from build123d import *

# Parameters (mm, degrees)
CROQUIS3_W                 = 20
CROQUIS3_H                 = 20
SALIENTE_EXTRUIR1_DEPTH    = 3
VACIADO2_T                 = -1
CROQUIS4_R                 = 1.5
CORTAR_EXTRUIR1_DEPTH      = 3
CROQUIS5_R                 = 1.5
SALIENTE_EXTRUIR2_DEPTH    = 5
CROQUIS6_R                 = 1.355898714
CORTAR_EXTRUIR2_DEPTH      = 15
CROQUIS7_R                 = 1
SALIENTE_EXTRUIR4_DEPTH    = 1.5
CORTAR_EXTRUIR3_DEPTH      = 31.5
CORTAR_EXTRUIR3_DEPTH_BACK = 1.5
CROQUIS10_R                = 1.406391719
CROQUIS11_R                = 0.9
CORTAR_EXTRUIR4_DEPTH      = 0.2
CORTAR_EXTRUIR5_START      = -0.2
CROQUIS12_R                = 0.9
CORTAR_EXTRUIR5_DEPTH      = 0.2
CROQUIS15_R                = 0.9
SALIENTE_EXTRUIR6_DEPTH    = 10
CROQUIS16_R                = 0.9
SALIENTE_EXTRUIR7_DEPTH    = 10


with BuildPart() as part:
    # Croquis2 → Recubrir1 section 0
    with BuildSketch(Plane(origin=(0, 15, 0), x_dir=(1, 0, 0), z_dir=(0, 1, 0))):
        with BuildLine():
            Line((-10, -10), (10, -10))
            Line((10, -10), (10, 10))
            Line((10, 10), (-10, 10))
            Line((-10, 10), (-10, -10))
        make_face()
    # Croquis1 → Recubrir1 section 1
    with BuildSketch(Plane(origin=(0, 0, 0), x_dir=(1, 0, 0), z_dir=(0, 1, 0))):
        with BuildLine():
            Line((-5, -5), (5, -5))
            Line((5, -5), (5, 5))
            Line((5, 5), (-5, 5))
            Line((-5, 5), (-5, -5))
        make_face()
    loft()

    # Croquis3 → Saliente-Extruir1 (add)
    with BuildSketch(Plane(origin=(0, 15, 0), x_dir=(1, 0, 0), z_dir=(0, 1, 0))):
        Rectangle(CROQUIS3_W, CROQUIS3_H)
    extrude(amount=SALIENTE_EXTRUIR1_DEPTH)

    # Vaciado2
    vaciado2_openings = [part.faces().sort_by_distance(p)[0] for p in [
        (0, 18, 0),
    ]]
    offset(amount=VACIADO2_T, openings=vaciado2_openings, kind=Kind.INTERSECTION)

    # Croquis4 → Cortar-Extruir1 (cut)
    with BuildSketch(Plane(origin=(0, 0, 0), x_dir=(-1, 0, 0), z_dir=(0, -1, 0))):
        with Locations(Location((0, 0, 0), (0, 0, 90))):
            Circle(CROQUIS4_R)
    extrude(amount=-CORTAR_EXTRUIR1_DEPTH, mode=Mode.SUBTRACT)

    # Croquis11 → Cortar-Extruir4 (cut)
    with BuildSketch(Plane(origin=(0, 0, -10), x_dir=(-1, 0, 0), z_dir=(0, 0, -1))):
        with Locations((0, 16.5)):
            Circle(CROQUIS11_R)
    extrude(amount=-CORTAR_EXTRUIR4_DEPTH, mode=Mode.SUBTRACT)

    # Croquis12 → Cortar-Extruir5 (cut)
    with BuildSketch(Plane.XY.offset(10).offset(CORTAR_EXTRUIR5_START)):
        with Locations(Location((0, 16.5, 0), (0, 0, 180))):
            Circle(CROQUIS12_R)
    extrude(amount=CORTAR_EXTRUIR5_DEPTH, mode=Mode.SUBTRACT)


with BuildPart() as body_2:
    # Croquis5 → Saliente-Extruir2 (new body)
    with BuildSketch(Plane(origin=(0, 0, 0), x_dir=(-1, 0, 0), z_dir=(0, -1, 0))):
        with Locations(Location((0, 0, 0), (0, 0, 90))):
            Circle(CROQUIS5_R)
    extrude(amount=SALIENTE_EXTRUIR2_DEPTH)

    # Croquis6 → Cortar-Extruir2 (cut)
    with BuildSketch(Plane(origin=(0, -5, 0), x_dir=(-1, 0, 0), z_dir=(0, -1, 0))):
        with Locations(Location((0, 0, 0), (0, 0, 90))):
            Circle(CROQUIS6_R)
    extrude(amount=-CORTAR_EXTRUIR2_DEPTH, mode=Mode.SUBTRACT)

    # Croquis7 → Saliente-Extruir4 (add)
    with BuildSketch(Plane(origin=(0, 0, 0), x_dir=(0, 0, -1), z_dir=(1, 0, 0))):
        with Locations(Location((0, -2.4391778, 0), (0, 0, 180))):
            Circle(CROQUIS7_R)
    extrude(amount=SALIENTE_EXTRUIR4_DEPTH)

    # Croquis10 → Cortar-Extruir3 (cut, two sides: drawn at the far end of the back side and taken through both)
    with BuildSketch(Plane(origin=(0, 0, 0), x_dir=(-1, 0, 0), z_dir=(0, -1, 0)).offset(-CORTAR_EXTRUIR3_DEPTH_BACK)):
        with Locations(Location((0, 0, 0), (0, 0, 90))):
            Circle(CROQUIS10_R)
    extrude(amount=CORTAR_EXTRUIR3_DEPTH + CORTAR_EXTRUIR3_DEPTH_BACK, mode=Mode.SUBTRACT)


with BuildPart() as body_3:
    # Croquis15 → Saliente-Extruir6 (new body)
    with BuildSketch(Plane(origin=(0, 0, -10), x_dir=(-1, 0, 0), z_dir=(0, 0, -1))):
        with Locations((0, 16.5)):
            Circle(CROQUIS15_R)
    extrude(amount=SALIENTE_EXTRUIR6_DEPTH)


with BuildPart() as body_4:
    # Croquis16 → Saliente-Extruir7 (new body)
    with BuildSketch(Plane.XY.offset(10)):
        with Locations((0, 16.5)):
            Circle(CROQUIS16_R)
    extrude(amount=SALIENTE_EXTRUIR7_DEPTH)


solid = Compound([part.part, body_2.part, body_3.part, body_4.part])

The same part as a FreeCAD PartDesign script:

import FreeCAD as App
import Part
import Sketcher

V = App.Vector


def faces_at(feature, points):
    """Names of the faces that lie closest to the given points."""
    faces = feature.Shape.Faces
    near = lambda p: min(range(len(faces)), key=lambda i: faces[i].distToShape(Part.Vertex(*p))[0])
    return sorted({f"Face{near(p) + 1}" for p in points})

doc = App.newDocument("Part")
body = doc.addObject("PartDesign::Body", "Body")

sketch1 = body.newObject("Sketcher::SketchObject", "Sketch")
sketch1.AttachmentSupport = (doc.getObject("XZ_Plane"), [""])
sketch1.MapMode = "FlatFace"
sketch1.AttachmentOffset = App.Placement(V(0, 0, -15), App.Rotation())
sketch1.addGeometry([
    Part.LineSegment(V(-10, 10, 0), V(10, 10, 0)),
    Part.LineSegment(V(10, 10, 0), V(10, -10, 0)),
    Part.LineSegment(V(10, -10, 0), V(-10, -10, 0)),
    Part.LineSegment(V(-10, -10, 0), V(-10, 10, 0)),
], False)
sketch1.addConstraint([
    Sketcher.Constraint("Coincident", 0, 2, 1, 1),
    Sketcher.Constraint("Coincident", 1, 2, 2, 1),
    Sketcher.Constraint("Coincident", 2, 2, 3, 1),
    Sketcher.Constraint("Coincident", 3, 2, 0, 1),
    Sketcher.Constraint("Horizontal", 0),
    Sketcher.Constraint("Vertical", 1),
    Sketcher.Constraint("Horizontal", 2),
    Sketcher.Constraint("Vertical", 3),
    Sketcher.Constraint("Symmetric", 0, 2, 2, 2, -1, 1),
    Sketcher.Constraint("Equal", 2, 1),
    Sketcher.Constraint("DistanceX", 0, 1, 0, 2, 20.0),
])

sketch2 = body.newObject("Sketcher::SketchObject", "Sketch001")
sketch2.AttachmentSupport = (doc.getObject("XZ_Plane"), [""])
sketch2.MapMode = "FlatFace"
sketch2.addGeometry([
    Part.LineSegment(V(-5, 5, 0), V(5, 5, 0)),
    Part.LineSegment(V(5, 5, 0), V(5, -5, 0)),
    Part.LineSegment(V(5, -5, 0), V(-5, -5, 0)),
    Part.LineSegment(V(-5, -5, 0), V(-5, 5, 0)),
], False)
sketch2.addConstraint([
    Sketcher.Constraint("Coincident", 0, 2, 1, 1),
    Sketcher.Constraint("Coincident", 1, 2, 2, 1),
    Sketcher.Constraint("Coincident", 2, 2, 3, 1),
    Sketcher.Constraint("Coincident", 3, 2, 0, 1),
    Sketcher.Constraint("Horizontal", 0),
    Sketcher.Constraint("Vertical", 1),
    Sketcher.Constraint("Horizontal", 2),
    Sketcher.Constraint("Vertical", 3),
    Sketcher.Constraint("Symmetric", 0, 2, 2, 2, -1, 1),
    Sketcher.Constraint("Equal", 2, 1),
    Sketcher.Constraint("DistanceX", 0, 1, 0, 2, 10.0),
])

additiveloft = body.newObject("PartDesign::AdditiveLoft", "AdditiveLoft")
additiveloft.Profile = sketch1
additiveloft.Sections = [sketch2]

sketch3 = body.newObject("Sketcher::SketchObject", "Sketch002")
sketch3.AttachmentSupport = (doc.getObject("XZ_Plane"), [""])
sketch3.MapMode = "FlatFace"
sketch3.AttachmentOffset = App.Placement(V(0, 0, -15), App.Rotation())
sketch3.addGeometry([
    Part.LineSegment(V(-10, -10, 0), V(-10, 10, 0)),
    Part.LineSegment(V(-10, 10, 0), V(10, 10, 0)),
    Part.LineSegment(V(10, 10, 0), V(10, -10, 0)),
    Part.LineSegment(V(10, -10, 0), V(-10, -10, 0)),
], False)
sketch3.addConstraint([
    Sketcher.Constraint("Coincident", 0, 2, 1, 1),
    Sketcher.Constraint("Coincident", 1, 2, 2, 1),
    Sketcher.Constraint("Coincident", 2, 2, 3, 1),
    Sketcher.Constraint("Coincident", 3, 2, 0, 1),
    Sketcher.Constraint("Vertical", 0),
    Sketcher.Constraint("Horizontal", 1),
    Sketcher.Constraint("Vertical", 2),
    Sketcher.Constraint("Horizontal", 3),
    Sketcher.Constraint("Symmetric", 0, 2, 2, 2, -1, 1),
    Sketcher.Constraint("Equal", 3, 0),
    Sketcher.Constraint("DistanceX", 1, 1, 1, 2, 20.0),
])
pad1 = body.newObject("PartDesign::Pad", "Pad")
pad1.Profile = sketch3
pad1.Length = 3
pad1.Reversed = True
doc.recompute()

thickness = body.newObject("PartDesign::Thickness", "Thickness")
thickness.Base = (pad1, faces_at(pad1, [(0, 18, 0)]))
thickness.Value = 1
thickness.Reversed = True
thickness.Join = "Intersection"

sketch4 = body.newObject("Sketcher::SketchObject", "Sketch003")
sketch4.AttachmentSupport = (doc.getObject("XZ_Plane"), [""])
sketch4.MapMode = "FlatFace"
sketch4.addGeometry(Part.Circle(V(0, 0, 0), V(0, 0, 1), 1.5), False)
sketch4.addConstraint([
    Sketcher.Constraint("Coincident", 0, 3, -1, 1),
    Sketcher.Constraint("Diameter", 0, 3.0),
])
pocket1 = body.newObject("PartDesign::Pocket", "Pocket")
pocket1.Profile = sketch4
pocket1.Length = 3

sketch5 = body.newObject("Sketcher::SketchObject", "Sketch004")
sketch5.AttachmentSupport = (doc.getObject("XY_Plane"), [""])
sketch5.MapMode = "FlatFace"
sketch5.AttachmentOffset = App.Placement(V(0, 0, -10), App.Rotation())
sketch5.addGeometry(Part.Circle(V(0, 16.5, 0), V(0, 0, 1), 0.9), False)
sketch5.addConstraint([
    Sketcher.Constraint("PointOnObject", 0, 3, -2),
    Sketcher.Constraint("Diameter", 0, 1.8),
    Sketcher.Constraint("DistanceY", -1, 1, 0, 3, 16.5),
])
pocket2 = body.newObject("PartDesign::Pocket", "Pocket001")
pocket2.Profile = sketch5
pocket2.Length = 0.2
pocket2.Reversed = True

sketch6 = body.newObject("Sketcher::SketchObject", "Sketch005")
sketch6.AttachmentSupport = (doc.getObject("XY_Plane"), [""])
sketch6.MapMode = "FlatFace"
sketch6.AttachmentOffset = App.Placement(V(0, 0, 9.8), App.Rotation())
sketch6.addGeometry(Part.Circle(V(0, 16.5, 0), V(0, 0, 1), 0.9), False)
sketch6.addConstraint([
    Sketcher.Constraint("PointOnObject", 0, 3, -2),
    Sketcher.Constraint("Diameter", 0, 1.8),
    Sketcher.Constraint("DistanceY", -1, 1, 0, 3, 16.5),
])
pocket3 = body.newObject("PartDesign::Pocket", "Pocket002")
pocket3.Profile = sketch6
pocket3.Length = 0.2
pocket3.Reversed = True
body2 = doc.addObject("PartDesign::Body", "Body001")

sketch7 = body2.newObject("Sketcher::SketchObject", "Sketch006")
sketch7.AttachmentSupport = (doc.getObject("XZ_Plane001"), [""])
sketch7.MapMode = "FlatFace"
sketch7.addGeometry(Part.Circle(V(0, 0, 0), V(0, 0, 1), 1.5), False)
sketch7.addConstraint([
    Sketcher.Constraint("Coincident", 0, 3, -1, 1),
    Sketcher.Constraint("Diameter", 0, 3.0),
])
pad2 = body2.newObject("PartDesign::Pad", "Pad001")
pad2.Profile = sketch7
pad2.Length = 5

sketch8 = body2.newObject("Sketcher::SketchObject", "Sketch007")
sketch8.AttachmentSupport = (doc.getObject("XZ_Plane001"), [""])
sketch8.MapMode = "FlatFace"
sketch8.AttachmentOffset = App.Placement(V(0, 0, 5), App.Rotation())
sketch8.addGeometry(Part.Circle(V(0, 0, 0), V(0, 0, 1), 1.4), False)
sketch8.addConstraint([
    Sketcher.Constraint("Coincident", 0, 3, -1, 1),
    Sketcher.Constraint("Diameter", 0, 2.711797),
])
pocket4 = body2.newObject("PartDesign::Pocket", "Pocket003")
pocket4.Profile = sketch8
pocket4.Length = 15

sketch9 = body2.newObject("Sketcher::SketchObject", "Sketch008")
sketch9.AttachmentSupport = (doc.getObject("YZ_Plane001"), [""])
sketch9.MapMode = "FlatFace"
sketch9.addGeometry(Part.Circle(V(-2.4, 0, 0), V(0, 0, 1), 1), False)
sketch9.addConstraint([
    Sketcher.Constraint("PointOnObject", 0, 3, -1),
    Sketcher.Constraint("Diameter", 0, 2.0),
    Sketcher.Constraint("DistanceX", 0, 3, -1, 1, 2.439178),
])
pad3 = body2.newObject("PartDesign::Pad", "Pad002")
pad3.Profile = sketch9
pad3.Length = 1.5

sketch10 = body2.newObject("Sketcher::SketchObject", "Sketch009")
sketch10.AttachmentSupport = (doc.getObject("XZ_Plane001"), [""])
sketch10.MapMode = "FlatFace"
sketch10.addGeometry(Part.Circle(V(0, 0, 0), V(0, 0, 1), 1.4), False)
sketch10.addConstraint([
    Sketcher.Constraint("Coincident", 0, 3, -1, 1),
    Sketcher.Constraint("Diameter", 0, 2.812783),
])
pocket5 = body2.newObject("PartDesign::Pocket", "Pocket004")
pocket5.Profile = sketch10
pocket5.Type = "ThroughAll"
pocket5.Midplane = True
body3 = doc.addObject("PartDesign::Body", "Body002")

sketch11 = body3.newObject("Sketcher::SketchObject", "Sketch010")
sketch11.AttachmentSupport = (doc.getObject("XY_Plane002"), [""])
sketch11.MapMode = "FlatFace"
sketch11.AttachmentOffset = App.Placement(V(0, 0, -10), App.Rotation())
sketch11.addGeometry(Part.Circle(V(0, 16.5, 0), V(0, 0, 1), 0.9), False)
sketch11.addConstraint([
    Sketcher.Constraint("PointOnObject", 0, 3, -2),
    Sketcher.Constraint("Diameter", 0, 1.8),
    Sketcher.Constraint("DistanceY", -1, 1, 0, 3, 16.5),
])
pad4 = body3.newObject("PartDesign::Pad", "Pad003")
pad4.Profile = sketch11
pad4.Length = 10
pad4.Reversed = True
body4 = doc.addObject("PartDesign::Body", "Body003")

sketch12 = body4.newObject("Sketcher::SketchObject", "Sketch011")
sketch12.AttachmentSupport = (doc.getObject("XY_Plane003"), [""])
sketch12.MapMode = "FlatFace"
sketch12.AttachmentOffset = App.Placement(V(0, 0, 10), App.Rotation())
sketch12.addGeometry(Part.Circle(V(0, 16.5, 0), V(0, 0, 1), 0.9), False)
sketch12.addConstraint([
    Sketcher.Constraint("PointOnObject", 0, 3, -2),
    Sketcher.Constraint("Diameter", 0, 1.8),
    Sketcher.Constraint("DistanceY", -1, 1, 0, 3, 16.5),
])
pad5 = body4.newObject("PartDesign::Pad", "Pad004")
pad5.Profile = sketch12
pad5.Length = 10

doc.recompute()
